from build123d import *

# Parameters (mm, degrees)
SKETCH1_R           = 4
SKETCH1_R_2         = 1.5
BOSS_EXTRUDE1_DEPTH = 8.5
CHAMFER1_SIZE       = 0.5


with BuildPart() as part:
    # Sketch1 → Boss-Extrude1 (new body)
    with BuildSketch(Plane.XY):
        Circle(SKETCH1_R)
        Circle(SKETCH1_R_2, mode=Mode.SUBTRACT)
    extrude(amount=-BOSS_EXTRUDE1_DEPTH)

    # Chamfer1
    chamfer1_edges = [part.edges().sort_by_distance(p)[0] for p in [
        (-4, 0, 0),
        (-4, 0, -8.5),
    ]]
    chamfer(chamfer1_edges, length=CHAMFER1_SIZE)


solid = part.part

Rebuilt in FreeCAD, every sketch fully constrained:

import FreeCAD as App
import Part
import Sketcher

V = App.Vector


def edges_at(feature, points):
    """Names of the edges that pass closest to the given points."""
    edges = feature.Shape.Edges
    near = lambda p: min(range(len(edges)), key=lambda i: edges[i].distToShape(Part.Vertex(*p))[0])
    return sorted({f"Edge{near(p) + 1}" for p in points})

doc = App.newDocument("Part")
body = doc.addObject("PartDesign::Body", "Body")

# Sketch on XY plane
sketch1 = doc.addObject("Sketcher::SketchObject", "Sketch")
body.addObject(sketch1)
sketch1.AttachmentSupport = (doc.XY_Plane, [""])
sketch1.MapMode = "FlatFace"
sketch1.addGeometry([
    Part.Circle(V(0, 0, 0), V(0, 0, 1), 4),
    Part.Circle(V(0, 0, 0), V(0, 0, 1), 1.5),
], False)
sketch1.addConstraint([
    Sketcher.Constraint("Coincident", 0, 3, -1, 1),
    Sketcher.Constraint("Coincident", 1, 3, -1, 1),
    Sketcher.Constraint("Diameter", 0, 8.0),
    Sketcher.Constraint("Diameter", 1, 3.0),
])
pad1 = doc.addObject("PartDesign::Pad", "Pad")
body.addObject(pad1)
pad1.Profile = sketch1
pad1.Length = 8.5
pad1.Reversed = True
doc.recompute()

chamfer = doc.addObject("PartDesign::Chamfer", "Chamfer")
body.addObject(chamfer)
chamfer.Base = (pad1, edges_at(pad1, [(-4, 0, 0), (-4, 0, -8.5)]))
chamfer.Size = 0.5

doc.recompute()
